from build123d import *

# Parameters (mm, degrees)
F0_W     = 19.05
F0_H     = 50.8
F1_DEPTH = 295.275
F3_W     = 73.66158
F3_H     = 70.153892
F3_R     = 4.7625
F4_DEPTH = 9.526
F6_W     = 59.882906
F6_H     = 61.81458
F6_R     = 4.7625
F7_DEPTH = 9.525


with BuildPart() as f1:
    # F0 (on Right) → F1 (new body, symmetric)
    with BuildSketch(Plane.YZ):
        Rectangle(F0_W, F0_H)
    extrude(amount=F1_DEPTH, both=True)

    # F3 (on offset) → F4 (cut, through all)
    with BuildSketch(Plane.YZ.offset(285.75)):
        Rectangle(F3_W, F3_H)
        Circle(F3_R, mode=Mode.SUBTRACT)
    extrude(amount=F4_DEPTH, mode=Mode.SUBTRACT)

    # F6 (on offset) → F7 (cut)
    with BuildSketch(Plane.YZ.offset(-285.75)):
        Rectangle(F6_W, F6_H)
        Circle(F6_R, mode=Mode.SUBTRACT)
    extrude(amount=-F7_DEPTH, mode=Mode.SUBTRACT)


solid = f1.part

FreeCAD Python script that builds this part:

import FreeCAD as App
import Part
import Sketcher
from FreeCAD import Vector
Q = App.Units.Quantity


def add_polygon(sketch, points):
    """Adds a closed chain of lines whose ends are joined by coincident constraints."""
    first, n = sketch.GeometryCount, len(points)
    for a, b in zip(points, points[1:] + points[:1]):
        sketch.addGeometry(Part.LineSegment(App.Vector(*a, 0), App.Vector(*b, 0)), False)
    for i in range(n):
        sketch.addConstraint(Sketcher.Constraint("Coincident", first + i, 2, first + (i + 1) % n, 1))

doc = App.newDocument("Part")
body = doc.addObject("PartDesign::Body", "Body")

# Sketch on YZ plane
sketch1 = body.newObject("Sketcher::SketchObject", "Sketch")
sketch1.AttachmentSupport = (doc.getObject("YZ_Plane"), [""])
sketch1.MapMode = "FlatFace"
add_polygon(sketch1, [(-9.525, 25.4), (-9.525, -25.4), (9.525, -25.4), (9.525, 25.4)])  # lines 0-3
sketch1.addConstraint(Sketcher.Constraint("Vertical", 0))
sketch1.addConstraint(Sketcher.Constraint("Horizontal", 1))
sketch1.addConstraint(Sketcher.Constraint("Vertical", 2))
sketch1.addConstraint(Sketcher.Constraint("Horizontal", 3))
sketch1.addConstraint(Sketcher.Constraint("Symmetric", 0, 2, 2, 2, -1, 1))
sketch1.addConstraint(Sketcher.Constraint("DistanceY", 0, 2, 0, 1, Q("2 in")))
sketch1.addConstraint(Sketcher.Constraint("DistanceX", 1, 1, 1, 2, Q("0.75 in")))
pad1 = body.newObject("PartDesign::Pad", "Pad")
pad1.Profile = sketch1
pad1.Length = Q("23.25 in")
pad1.Midplane = True

# Sketch on YZ plane
sketch2 = body.newObject("Sketcher::SketchObject", "Sketch001")
sketch2.AttachmentSupport = (doc.getObject("YZ_Plane"), [""])
sketch2.MapMode = "FlatFace"
sketch2.AttachmentOffset = App.Placement(Vector(0, 0, 11.25 * 25.4), App.Rotation())
add_polygon(sketch2, [(-36.83079, 35.076946), (-36.83079, -35.076946), (36.83079, -35.076946), (36.83079, 35.076946)])  # lines 0-3
sketch2.addGeometry(Part.Circle(Vector(0, 0, 0), Vector(0, 0, 1), 4.7625), False)  # 4
sketch2.addConstraint(Sketcher.Constraint("Vertical", 0))
sketch2.addConstraint(Sketcher.Constraint("Horizontal", 1))
sketch2.addConstraint(Sketcher.Constraint("Vertical", 2))
sketch2.addConstraint(Sketcher.Constraint("Horizontal", 3))
sketch2.addConstraint(Sketcher.Constraint("Coincident", 4, 3, -1, 1))
sketch2.addConstraint(Sketcher.Constraint("Symmetric", 0, 2, 2, 2, -1, 1))
sketch2.addConstraint(Sketcher.Constraint("Diameter", 4, Q("0.375 in")))
sketch2.addConstraint(Sketcher.Constraint("DistanceX", 1, 1, 1, 2, 73.66158))
sketch2.addConstraint(Sketcher.Constraint("DistanceY", 0, 2, 0, 1, 70.153892))
pocket1 = body.newObject("PartDesign::Pocket", "Pocket")
pocket1.Profile = sketch2
pocket1.Type = "ThroughAll"
pocket1.Reversed = True

# Sketch on YZ plane
sketch3 = body.newObject("Sketcher::SketchObject", "Sketch002")
sketch3.AttachmentSupport = (doc.getObject("YZ_Plane"), [""])
sketch3.MapMode = "FlatFace"
sketch3.AttachmentOffset = App.Placement(Vector(0, 0, -11.25 * 25.4), App.Rotation())
add_polygon(sketch3, [(-29.941453, 30.90729), (-29.941453, -30.90729), (29.941453, -30.90729), (29.941453, 30.90729)])  # lines 0-3
sketch3.addGeometry(Part.Circle(Vector(0, 0, 0), Vector(0, 0, 1), 4.7625), False)  # 4
sketch3.addConstraint(Sketcher.Constraint("Vertical", 0))
sketch3.addConstraint(Sketcher.Constraint("Horizontal", 1))
sketch3.addConstraint(Sketcher.Constraint("Vertical", 2))
sketch3.addConstraint(Sketcher.Constraint("Horizontal", 3))
sketch3.addConstraint(Sketcher.Constraint("Coincident", 4, 3, -1, 1))
sketch3.addConstraint(Sketcher.Constraint("Symmetric", 0, 2, 2, 2, -1, 1))
sketch3.addConstraint(Sketcher.Constraint("Diameter", 4, Q("0.375 in")))
sketch3.addConstraint(Sketcher.Constraint("DistanceY", 0, 2, 0, 1, 61.81458))
sketch3.addConstraint(Sketcher.Constraint("DistanceX", 1, 1, 1, 2, 59.882906))
pocket2 = body.newObject("PartDesign::Pocket", "Pocket001")
pocket2.Profile = sketch3
pocket2.Length = Q("0.375 in")

doc.recompute()
